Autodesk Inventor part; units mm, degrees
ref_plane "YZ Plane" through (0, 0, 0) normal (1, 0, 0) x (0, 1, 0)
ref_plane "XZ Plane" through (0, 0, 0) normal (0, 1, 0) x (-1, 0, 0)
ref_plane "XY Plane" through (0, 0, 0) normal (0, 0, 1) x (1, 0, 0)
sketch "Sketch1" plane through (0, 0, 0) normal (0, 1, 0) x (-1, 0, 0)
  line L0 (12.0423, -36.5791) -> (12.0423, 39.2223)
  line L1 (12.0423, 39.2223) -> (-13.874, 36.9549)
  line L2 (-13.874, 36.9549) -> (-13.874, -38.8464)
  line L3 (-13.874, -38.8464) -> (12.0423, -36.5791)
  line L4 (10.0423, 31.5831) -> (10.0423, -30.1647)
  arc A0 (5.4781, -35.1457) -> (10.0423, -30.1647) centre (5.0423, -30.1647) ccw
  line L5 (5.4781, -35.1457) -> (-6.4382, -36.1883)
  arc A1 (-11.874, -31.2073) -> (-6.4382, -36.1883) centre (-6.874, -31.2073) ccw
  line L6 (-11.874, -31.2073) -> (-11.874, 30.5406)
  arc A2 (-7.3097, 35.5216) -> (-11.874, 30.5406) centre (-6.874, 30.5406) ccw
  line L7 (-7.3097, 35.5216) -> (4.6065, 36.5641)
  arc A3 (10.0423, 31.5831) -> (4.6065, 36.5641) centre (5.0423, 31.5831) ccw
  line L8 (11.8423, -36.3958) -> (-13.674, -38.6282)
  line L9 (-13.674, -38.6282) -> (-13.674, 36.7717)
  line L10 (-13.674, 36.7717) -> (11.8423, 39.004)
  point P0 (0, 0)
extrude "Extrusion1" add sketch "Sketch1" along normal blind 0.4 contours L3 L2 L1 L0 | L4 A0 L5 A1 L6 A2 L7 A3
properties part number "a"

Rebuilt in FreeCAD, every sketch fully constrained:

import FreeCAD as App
import Part
import Sketcher
from FreeCAD import Vector
Q = App.Units.Quantity


def add_polygon(sketch, points):
    """Adds a closed chain of lines whose ends are joined by coincident constraints."""
    first, n = sketch.GeometryCount, len(points)
    for a, b in zip(points, points[1:] + points[:1]):
        sketch.addGeometry(Part.LineSegment(App.Vector(*a, 0), App.Vector(*b, 0)), False)
    for i in range(n):
        sketch.addConstraint(Sketcher.Constraint("Coincident", first + i, 2, first + (i + 1) % n, 1))

doc = App.newDocument("Part")
params = doc.addObject("Spreadsheet::Sheet", "Params")
for row, (alias, value) in enumerate([
    ("pad1_length", "0.4 mm"),
], start=1):
    params.set(f"A{row}", alias)
    params.set(f"B{row}", "=" + value)
    params.setAlias(f"B{row}", alias)

body = doc.addObject("PartDesign::Body", "Body")

sketch1 = doc.addObject("Sketcher::SketchObject", "Sketch")
body.addObject(sketch1)
sketch1.AttachmentSupport = (doc.XZ_Plane, [""])
sketch1.MapMode = "FlatFace"
add_polygon(sketch1, [(14, -39), (-12, -37), (-12, 39), (14, 37)])
sketch1.addConstraint(Sketcher.Constraint("Vertical", 1))
sketch1.addConstraint(Sketcher.Constraint("Vertical", 3))
sketch1.addConstraint(Sketcher.Constraint("Parallel", 0, 2))
sketch1.addConstraint(Sketcher.Constraint("Angle", 0, Q("175.0002 deg")))
sketch1.addConstraint(Sketcher.Constraint("DistanceY", 1, 1, 1, 2, 75.8014))
sketch1.addConstraint(Sketcher.Constraint("DistanceY", 0, 2, -1, 1, 36.579))
sketch1.addConstraint(Sketcher.Constraint("DistanceX", -1, 1, 2, 2, 13.874))
sketch1.addConstraint(Sketcher.Constraint("DistanceY", -1, 1, 2, 2, 36.955))
pad1 = doc.addObject("PartDesign::Pad", "Pad")
body.addObject(pad1)
pad1.Profile = sketch1
pad1.setExpression("Length", "Params.pad1_length")
pad1.Reversed = True

doc.recompute()
